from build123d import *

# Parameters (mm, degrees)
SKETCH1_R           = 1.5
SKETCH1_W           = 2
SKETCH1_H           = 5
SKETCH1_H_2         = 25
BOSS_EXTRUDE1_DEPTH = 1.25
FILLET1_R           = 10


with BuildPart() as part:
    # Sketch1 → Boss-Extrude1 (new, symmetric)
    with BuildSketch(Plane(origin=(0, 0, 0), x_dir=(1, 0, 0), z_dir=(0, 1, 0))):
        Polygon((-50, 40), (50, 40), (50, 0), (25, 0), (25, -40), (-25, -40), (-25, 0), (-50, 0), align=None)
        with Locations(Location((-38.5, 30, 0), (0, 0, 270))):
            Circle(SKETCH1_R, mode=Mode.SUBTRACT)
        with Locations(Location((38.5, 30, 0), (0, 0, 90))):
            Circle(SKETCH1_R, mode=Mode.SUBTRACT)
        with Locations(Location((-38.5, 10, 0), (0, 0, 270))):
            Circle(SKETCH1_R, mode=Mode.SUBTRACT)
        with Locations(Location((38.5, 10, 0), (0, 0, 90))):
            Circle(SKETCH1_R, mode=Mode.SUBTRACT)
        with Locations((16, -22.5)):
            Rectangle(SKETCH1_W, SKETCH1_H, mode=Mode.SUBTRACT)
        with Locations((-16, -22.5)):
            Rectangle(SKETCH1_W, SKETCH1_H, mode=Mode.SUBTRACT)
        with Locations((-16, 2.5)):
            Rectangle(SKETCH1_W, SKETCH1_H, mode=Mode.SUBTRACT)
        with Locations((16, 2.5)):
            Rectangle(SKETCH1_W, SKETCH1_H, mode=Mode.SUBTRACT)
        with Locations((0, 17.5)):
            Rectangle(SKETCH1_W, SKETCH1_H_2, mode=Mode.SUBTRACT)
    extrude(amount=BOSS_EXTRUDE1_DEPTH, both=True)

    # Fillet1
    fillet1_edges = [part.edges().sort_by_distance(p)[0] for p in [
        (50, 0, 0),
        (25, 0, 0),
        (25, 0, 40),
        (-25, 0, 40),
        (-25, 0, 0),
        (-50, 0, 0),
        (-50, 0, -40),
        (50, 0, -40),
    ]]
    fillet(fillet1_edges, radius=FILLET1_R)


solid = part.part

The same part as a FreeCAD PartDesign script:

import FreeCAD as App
import Part
import Sketcher


def edges_at(feature, points):
    """Names of the edges that pass closest to the given points."""
    edges = feature.Shape.Edges
    near = lambda p: min(range(len(edges)), key=lambda i: edges[i].distToShape(Part.Vertex(*p))[0])
    return sorted({f"Edge{near(p) + 1}" for p in points})


def add_polygon(sketch, points):
    """Adds a closed chain of lines whose ends are joined by coincident constraints."""
    first, n = sketch.GeometryCount, len(points)
    for a, b in zip(points, points[1:] + points[:1]):
        sketch.addGeometry(Part.LineSegment(App.Vector(*a, 0), App.Vector(*b, 0)), False)
    for i in range(n):
        sketch.addConstraint(Sketcher.Constraint("Coincident", first + i, 2, first + (i + 1) % n, 1))

doc = App.newDocument("Part")
body = doc.addObject("PartDesign::Body", "Body")

# Sketch on XZ plane
sketch1 = body.newObject("Sketcher::SketchObject", "Sketch")
sketch1.AttachmentSupport = (doc.getObject("XZ_Plane"), [""])
sketch1.MapMode = "FlatFace"
add_polygon(sketch1, [(50, -40), (-50, -40), (-50, 0), (-25, 0), (-25, 40), (25, 40), (25, 0), (50, 0)])  # lines 0-7
add_polygon(sketch1, [(15, 25), (15, 20), (17, 20), (17, 25)])  # lines 8-11
add_polygon(sketch1, [(15, 0), (15, -5), (17, -5), (17, 0)])  # lines 12-15
add_polygon(sketch1, [(-17, 25), (-17, 20), (-15, 20), (-15, 25)])  # lines 16-19
add_polygon(sketch1, [(-17, 0), (-17, -5), (-15, -5), (-15, 0)])  # lines 20-23
sketch1.addGeometry(Part.Circle(App.Vector(38.5, -10, 0), App.Vector(0, 0, 1), 1.5), False)  # 24
sketch1.addGeometry(Part.Circle(App.Vector(38.5, -30, 0), App.Vector(0, 0, 1), 1.5), False)  # 25
sketch1.addGeometry(Part.Circle(App.Vector(-38.5, -10, 0), App.Vector(0, 0, 1), 1.5), False)  # 26
add_polygon(sketch1, [(-1, -5), (-1, -30), (1, -30), (1, -5)])  # lines 27-30
sketch1.addGeometry(Part.Circle(App.Vector(-38.5, -30, 0), App.Vector(0, 0, 1), 1.5), False)  # 31
sketch1.addConstraint(Sketcher.Constraint("Horizontal", 0))
sketch1.addConstraint(Sketcher.Constraint("Vertical", 1))
sketch1.addConstraint(Sketcher.Constraint("Horizontal", 2))
sketch1.addConstraint(Sketcher.Constraint("Vertical", 3))
sketch1.addConstraint(Sketcher.Constraint("Horizontal", 4))
sketch1.addConstraint(Sketcher.Constraint("Vertical", 5))
sketch1.addConstraint(Sketcher.Constraint("Horizontal", 6))
sketch1.addConstraint(Sketcher.Constraint("Vertical", 7))
sketch1.addConstraint(Sketcher.Constraint("Vertical", 8))
sketch1.addConstraint(Sketcher.Constraint("Horizontal", 9))
sketch1.addConstraint(Sketcher.Constraint("Vertical", 10))
sketch1.addConstraint(Sketcher.Constraint("Horizontal", 11))
sketch1.addConstraint(Sketcher.Constraint("Vertical", 12))
sketch1.addConstraint(Sketcher.Constraint("Horizontal", 13))
sketch1.addConstraint(Sketcher.Constraint("Vertical", 14))
sketch1.addConstraint(Sketcher.Constraint("Horizontal", 15))
sketch1.addConstraint(Sketcher.Constraint("Vertical", 16))
sketch1.addConstraint(Sketcher.Constraint("Horizontal", 17))
sketch1.addConstraint(Sketcher.Constraint("Vertical", 18))
sketch1.addConstraint(Sketcher.Constraint("Horizontal", 19))
sketch1.addConstraint(Sketcher.Constraint("Vertical", 20))
sketch1.addConstraint(Sketcher.Constraint("Horizontal", 21))
sketch1.addConstraint(Sketcher.Constraint("Vertical", 22))
sketch1.addConstraint(Sketcher.Constraint("Horizontal", 23))
sketch1.addConstraint(Sketcher.Constraint("Vertical", 27))
sketch1.addConstraint(Sketcher.Constraint("Horizontal", 28))
sketch1.addConstraint(Sketcher.Constraint("Vertical", 29))
sketch1.addConstraint(Sketcher.Constraint("Horizontal", 30))
sketch1.addConstraint(Sketcher.Constraint("Equal", 24, 25))
sketch1.addConstraint(Sketcher.Constraint("Equal", 25, 26))
sketch1.addConstraint(Sketcher.Constraint("Equal", 26, 31))
sketch1.addConstraint(Sketcher.Constraint("Symmetric", 2, 2, 5, 2, -1, 1))
sketch1.addConstraint(Sketcher.Constraint("Symmetric", 15, 2, 22, 2, -1, 1))
sketch1.addConstraint(Sketcher.Constraint("Symmetric", 24, 3, 26, 3, -2))
sketch1.addConstraint(Sketcher.Constraint("Symmetric", 25, 3, 31, 3, -2))
sketch1.addConstraint(Sketcher.Constraint("Symmetric", 1, 2, 6, 2, -2))
sketch1.addConstraint(Sketcher.Constraint("Symmetric", 9, 2, 16, 2, -2))
sketch1.addConstraint(Sketcher.Constraint("Symmetric", 11, 2, 18, 2, -2))
sketch1.addConstraint(Sketcher.Constraint("Symmetric", 13, 2, 20, 2, -2))
sketch1.addConstraint(Sketcher.Constraint("PointOnObject", 14, 2, -1))
sketch1.addConstraint(Sketcher.Constraint("Horizontal", 31, 3, 27, 2))
sketch1.addConstraint(Sketcher.Constraint("Horizontal", 21, 2, 29, 2))
sketch1.addConstraint(Sketcher.Constraint("Vertical", 24, 3, 25, 3))
sketch1.addConstraint(Sketcher.Constraint("Vertical", 11, 2, 12, 2))
sketch1.addConstraint(Sketcher.Constraint("Vertical", 10, 2, 13, 2))
sketch1.addConstraint(Sketcher.Constraint("Equal", 23, 28))
sketch1.addConstraint(Sketcher.Constraint("Equal", 1, 3))
sketch1.addConstraint(Sketcher.Constraint("Equal", 10, 12))
sketch1.addConstraint(Sketcher.Constraint("Equal", 6, 27))
sketch1.addConstraint(Sketcher.Constraint("Diameter", 24, 3.0))
sketch1.addConstraint(Sketcher.Constraint("DistanceX", 0, 2, 0, 1, 100.0))
sketch1.addConstraint(Sketcher.Constraint("DistanceX", 2, 1, 2, 2, 25.0))
sketch1.addConstraint(Sketcher.Constraint("DistanceX", 9, 1, 9, 2, 2.0))
sketch1.addConstraint(Sketcher.Constraint("DistanceY", 1, 1, 1, 2, 40.0))
sketch1.addConstraint(Sketcher.Constraint("DistanceY", 8, 2, 8, 1, 5.0))
sketch1.addConstraint(Sketcher.Constraint("DistanceY", 24, 3, -1, 1, 10.0))
sketch1.addConstraint(Sketcher.Constraint("DistanceX", -1, 1, 8, 2, 15.0))
sketch1.addConstraint(Sketcher.Constraint("DistanceY", -1, 1, 8, 2, 20.0))
sketch1.addConstraint(Sketcher.Constraint("DistanceX", 27, 2, -1, 1, 1.0))
sketch1.addConstraint(Sketcher.Constraint("DistanceX", 26, 3, 24, 3, 77.0))
pad1 = body.newObject("PartDesign::Pad", "Pad")
pad1.Profile = sketch1
pad1.Length = 2.5
pad1.Midplane = True
doc.recompute()

fillet = body.newObject("PartDesign::Fillet", "Fillet")
fillet.Base = (pad1, edges_at(pad1, [
    (50, 0, 0),
    (25, 0, 0),
    (25, 0, 40),
    (-25, 0, 40),
    (-25, 0, 0),
    (-50, 0, 0),
    (-50, 0, -40),
    (50, 0, -40),
]))
fillet.Radius = 10

doc.recompute()
